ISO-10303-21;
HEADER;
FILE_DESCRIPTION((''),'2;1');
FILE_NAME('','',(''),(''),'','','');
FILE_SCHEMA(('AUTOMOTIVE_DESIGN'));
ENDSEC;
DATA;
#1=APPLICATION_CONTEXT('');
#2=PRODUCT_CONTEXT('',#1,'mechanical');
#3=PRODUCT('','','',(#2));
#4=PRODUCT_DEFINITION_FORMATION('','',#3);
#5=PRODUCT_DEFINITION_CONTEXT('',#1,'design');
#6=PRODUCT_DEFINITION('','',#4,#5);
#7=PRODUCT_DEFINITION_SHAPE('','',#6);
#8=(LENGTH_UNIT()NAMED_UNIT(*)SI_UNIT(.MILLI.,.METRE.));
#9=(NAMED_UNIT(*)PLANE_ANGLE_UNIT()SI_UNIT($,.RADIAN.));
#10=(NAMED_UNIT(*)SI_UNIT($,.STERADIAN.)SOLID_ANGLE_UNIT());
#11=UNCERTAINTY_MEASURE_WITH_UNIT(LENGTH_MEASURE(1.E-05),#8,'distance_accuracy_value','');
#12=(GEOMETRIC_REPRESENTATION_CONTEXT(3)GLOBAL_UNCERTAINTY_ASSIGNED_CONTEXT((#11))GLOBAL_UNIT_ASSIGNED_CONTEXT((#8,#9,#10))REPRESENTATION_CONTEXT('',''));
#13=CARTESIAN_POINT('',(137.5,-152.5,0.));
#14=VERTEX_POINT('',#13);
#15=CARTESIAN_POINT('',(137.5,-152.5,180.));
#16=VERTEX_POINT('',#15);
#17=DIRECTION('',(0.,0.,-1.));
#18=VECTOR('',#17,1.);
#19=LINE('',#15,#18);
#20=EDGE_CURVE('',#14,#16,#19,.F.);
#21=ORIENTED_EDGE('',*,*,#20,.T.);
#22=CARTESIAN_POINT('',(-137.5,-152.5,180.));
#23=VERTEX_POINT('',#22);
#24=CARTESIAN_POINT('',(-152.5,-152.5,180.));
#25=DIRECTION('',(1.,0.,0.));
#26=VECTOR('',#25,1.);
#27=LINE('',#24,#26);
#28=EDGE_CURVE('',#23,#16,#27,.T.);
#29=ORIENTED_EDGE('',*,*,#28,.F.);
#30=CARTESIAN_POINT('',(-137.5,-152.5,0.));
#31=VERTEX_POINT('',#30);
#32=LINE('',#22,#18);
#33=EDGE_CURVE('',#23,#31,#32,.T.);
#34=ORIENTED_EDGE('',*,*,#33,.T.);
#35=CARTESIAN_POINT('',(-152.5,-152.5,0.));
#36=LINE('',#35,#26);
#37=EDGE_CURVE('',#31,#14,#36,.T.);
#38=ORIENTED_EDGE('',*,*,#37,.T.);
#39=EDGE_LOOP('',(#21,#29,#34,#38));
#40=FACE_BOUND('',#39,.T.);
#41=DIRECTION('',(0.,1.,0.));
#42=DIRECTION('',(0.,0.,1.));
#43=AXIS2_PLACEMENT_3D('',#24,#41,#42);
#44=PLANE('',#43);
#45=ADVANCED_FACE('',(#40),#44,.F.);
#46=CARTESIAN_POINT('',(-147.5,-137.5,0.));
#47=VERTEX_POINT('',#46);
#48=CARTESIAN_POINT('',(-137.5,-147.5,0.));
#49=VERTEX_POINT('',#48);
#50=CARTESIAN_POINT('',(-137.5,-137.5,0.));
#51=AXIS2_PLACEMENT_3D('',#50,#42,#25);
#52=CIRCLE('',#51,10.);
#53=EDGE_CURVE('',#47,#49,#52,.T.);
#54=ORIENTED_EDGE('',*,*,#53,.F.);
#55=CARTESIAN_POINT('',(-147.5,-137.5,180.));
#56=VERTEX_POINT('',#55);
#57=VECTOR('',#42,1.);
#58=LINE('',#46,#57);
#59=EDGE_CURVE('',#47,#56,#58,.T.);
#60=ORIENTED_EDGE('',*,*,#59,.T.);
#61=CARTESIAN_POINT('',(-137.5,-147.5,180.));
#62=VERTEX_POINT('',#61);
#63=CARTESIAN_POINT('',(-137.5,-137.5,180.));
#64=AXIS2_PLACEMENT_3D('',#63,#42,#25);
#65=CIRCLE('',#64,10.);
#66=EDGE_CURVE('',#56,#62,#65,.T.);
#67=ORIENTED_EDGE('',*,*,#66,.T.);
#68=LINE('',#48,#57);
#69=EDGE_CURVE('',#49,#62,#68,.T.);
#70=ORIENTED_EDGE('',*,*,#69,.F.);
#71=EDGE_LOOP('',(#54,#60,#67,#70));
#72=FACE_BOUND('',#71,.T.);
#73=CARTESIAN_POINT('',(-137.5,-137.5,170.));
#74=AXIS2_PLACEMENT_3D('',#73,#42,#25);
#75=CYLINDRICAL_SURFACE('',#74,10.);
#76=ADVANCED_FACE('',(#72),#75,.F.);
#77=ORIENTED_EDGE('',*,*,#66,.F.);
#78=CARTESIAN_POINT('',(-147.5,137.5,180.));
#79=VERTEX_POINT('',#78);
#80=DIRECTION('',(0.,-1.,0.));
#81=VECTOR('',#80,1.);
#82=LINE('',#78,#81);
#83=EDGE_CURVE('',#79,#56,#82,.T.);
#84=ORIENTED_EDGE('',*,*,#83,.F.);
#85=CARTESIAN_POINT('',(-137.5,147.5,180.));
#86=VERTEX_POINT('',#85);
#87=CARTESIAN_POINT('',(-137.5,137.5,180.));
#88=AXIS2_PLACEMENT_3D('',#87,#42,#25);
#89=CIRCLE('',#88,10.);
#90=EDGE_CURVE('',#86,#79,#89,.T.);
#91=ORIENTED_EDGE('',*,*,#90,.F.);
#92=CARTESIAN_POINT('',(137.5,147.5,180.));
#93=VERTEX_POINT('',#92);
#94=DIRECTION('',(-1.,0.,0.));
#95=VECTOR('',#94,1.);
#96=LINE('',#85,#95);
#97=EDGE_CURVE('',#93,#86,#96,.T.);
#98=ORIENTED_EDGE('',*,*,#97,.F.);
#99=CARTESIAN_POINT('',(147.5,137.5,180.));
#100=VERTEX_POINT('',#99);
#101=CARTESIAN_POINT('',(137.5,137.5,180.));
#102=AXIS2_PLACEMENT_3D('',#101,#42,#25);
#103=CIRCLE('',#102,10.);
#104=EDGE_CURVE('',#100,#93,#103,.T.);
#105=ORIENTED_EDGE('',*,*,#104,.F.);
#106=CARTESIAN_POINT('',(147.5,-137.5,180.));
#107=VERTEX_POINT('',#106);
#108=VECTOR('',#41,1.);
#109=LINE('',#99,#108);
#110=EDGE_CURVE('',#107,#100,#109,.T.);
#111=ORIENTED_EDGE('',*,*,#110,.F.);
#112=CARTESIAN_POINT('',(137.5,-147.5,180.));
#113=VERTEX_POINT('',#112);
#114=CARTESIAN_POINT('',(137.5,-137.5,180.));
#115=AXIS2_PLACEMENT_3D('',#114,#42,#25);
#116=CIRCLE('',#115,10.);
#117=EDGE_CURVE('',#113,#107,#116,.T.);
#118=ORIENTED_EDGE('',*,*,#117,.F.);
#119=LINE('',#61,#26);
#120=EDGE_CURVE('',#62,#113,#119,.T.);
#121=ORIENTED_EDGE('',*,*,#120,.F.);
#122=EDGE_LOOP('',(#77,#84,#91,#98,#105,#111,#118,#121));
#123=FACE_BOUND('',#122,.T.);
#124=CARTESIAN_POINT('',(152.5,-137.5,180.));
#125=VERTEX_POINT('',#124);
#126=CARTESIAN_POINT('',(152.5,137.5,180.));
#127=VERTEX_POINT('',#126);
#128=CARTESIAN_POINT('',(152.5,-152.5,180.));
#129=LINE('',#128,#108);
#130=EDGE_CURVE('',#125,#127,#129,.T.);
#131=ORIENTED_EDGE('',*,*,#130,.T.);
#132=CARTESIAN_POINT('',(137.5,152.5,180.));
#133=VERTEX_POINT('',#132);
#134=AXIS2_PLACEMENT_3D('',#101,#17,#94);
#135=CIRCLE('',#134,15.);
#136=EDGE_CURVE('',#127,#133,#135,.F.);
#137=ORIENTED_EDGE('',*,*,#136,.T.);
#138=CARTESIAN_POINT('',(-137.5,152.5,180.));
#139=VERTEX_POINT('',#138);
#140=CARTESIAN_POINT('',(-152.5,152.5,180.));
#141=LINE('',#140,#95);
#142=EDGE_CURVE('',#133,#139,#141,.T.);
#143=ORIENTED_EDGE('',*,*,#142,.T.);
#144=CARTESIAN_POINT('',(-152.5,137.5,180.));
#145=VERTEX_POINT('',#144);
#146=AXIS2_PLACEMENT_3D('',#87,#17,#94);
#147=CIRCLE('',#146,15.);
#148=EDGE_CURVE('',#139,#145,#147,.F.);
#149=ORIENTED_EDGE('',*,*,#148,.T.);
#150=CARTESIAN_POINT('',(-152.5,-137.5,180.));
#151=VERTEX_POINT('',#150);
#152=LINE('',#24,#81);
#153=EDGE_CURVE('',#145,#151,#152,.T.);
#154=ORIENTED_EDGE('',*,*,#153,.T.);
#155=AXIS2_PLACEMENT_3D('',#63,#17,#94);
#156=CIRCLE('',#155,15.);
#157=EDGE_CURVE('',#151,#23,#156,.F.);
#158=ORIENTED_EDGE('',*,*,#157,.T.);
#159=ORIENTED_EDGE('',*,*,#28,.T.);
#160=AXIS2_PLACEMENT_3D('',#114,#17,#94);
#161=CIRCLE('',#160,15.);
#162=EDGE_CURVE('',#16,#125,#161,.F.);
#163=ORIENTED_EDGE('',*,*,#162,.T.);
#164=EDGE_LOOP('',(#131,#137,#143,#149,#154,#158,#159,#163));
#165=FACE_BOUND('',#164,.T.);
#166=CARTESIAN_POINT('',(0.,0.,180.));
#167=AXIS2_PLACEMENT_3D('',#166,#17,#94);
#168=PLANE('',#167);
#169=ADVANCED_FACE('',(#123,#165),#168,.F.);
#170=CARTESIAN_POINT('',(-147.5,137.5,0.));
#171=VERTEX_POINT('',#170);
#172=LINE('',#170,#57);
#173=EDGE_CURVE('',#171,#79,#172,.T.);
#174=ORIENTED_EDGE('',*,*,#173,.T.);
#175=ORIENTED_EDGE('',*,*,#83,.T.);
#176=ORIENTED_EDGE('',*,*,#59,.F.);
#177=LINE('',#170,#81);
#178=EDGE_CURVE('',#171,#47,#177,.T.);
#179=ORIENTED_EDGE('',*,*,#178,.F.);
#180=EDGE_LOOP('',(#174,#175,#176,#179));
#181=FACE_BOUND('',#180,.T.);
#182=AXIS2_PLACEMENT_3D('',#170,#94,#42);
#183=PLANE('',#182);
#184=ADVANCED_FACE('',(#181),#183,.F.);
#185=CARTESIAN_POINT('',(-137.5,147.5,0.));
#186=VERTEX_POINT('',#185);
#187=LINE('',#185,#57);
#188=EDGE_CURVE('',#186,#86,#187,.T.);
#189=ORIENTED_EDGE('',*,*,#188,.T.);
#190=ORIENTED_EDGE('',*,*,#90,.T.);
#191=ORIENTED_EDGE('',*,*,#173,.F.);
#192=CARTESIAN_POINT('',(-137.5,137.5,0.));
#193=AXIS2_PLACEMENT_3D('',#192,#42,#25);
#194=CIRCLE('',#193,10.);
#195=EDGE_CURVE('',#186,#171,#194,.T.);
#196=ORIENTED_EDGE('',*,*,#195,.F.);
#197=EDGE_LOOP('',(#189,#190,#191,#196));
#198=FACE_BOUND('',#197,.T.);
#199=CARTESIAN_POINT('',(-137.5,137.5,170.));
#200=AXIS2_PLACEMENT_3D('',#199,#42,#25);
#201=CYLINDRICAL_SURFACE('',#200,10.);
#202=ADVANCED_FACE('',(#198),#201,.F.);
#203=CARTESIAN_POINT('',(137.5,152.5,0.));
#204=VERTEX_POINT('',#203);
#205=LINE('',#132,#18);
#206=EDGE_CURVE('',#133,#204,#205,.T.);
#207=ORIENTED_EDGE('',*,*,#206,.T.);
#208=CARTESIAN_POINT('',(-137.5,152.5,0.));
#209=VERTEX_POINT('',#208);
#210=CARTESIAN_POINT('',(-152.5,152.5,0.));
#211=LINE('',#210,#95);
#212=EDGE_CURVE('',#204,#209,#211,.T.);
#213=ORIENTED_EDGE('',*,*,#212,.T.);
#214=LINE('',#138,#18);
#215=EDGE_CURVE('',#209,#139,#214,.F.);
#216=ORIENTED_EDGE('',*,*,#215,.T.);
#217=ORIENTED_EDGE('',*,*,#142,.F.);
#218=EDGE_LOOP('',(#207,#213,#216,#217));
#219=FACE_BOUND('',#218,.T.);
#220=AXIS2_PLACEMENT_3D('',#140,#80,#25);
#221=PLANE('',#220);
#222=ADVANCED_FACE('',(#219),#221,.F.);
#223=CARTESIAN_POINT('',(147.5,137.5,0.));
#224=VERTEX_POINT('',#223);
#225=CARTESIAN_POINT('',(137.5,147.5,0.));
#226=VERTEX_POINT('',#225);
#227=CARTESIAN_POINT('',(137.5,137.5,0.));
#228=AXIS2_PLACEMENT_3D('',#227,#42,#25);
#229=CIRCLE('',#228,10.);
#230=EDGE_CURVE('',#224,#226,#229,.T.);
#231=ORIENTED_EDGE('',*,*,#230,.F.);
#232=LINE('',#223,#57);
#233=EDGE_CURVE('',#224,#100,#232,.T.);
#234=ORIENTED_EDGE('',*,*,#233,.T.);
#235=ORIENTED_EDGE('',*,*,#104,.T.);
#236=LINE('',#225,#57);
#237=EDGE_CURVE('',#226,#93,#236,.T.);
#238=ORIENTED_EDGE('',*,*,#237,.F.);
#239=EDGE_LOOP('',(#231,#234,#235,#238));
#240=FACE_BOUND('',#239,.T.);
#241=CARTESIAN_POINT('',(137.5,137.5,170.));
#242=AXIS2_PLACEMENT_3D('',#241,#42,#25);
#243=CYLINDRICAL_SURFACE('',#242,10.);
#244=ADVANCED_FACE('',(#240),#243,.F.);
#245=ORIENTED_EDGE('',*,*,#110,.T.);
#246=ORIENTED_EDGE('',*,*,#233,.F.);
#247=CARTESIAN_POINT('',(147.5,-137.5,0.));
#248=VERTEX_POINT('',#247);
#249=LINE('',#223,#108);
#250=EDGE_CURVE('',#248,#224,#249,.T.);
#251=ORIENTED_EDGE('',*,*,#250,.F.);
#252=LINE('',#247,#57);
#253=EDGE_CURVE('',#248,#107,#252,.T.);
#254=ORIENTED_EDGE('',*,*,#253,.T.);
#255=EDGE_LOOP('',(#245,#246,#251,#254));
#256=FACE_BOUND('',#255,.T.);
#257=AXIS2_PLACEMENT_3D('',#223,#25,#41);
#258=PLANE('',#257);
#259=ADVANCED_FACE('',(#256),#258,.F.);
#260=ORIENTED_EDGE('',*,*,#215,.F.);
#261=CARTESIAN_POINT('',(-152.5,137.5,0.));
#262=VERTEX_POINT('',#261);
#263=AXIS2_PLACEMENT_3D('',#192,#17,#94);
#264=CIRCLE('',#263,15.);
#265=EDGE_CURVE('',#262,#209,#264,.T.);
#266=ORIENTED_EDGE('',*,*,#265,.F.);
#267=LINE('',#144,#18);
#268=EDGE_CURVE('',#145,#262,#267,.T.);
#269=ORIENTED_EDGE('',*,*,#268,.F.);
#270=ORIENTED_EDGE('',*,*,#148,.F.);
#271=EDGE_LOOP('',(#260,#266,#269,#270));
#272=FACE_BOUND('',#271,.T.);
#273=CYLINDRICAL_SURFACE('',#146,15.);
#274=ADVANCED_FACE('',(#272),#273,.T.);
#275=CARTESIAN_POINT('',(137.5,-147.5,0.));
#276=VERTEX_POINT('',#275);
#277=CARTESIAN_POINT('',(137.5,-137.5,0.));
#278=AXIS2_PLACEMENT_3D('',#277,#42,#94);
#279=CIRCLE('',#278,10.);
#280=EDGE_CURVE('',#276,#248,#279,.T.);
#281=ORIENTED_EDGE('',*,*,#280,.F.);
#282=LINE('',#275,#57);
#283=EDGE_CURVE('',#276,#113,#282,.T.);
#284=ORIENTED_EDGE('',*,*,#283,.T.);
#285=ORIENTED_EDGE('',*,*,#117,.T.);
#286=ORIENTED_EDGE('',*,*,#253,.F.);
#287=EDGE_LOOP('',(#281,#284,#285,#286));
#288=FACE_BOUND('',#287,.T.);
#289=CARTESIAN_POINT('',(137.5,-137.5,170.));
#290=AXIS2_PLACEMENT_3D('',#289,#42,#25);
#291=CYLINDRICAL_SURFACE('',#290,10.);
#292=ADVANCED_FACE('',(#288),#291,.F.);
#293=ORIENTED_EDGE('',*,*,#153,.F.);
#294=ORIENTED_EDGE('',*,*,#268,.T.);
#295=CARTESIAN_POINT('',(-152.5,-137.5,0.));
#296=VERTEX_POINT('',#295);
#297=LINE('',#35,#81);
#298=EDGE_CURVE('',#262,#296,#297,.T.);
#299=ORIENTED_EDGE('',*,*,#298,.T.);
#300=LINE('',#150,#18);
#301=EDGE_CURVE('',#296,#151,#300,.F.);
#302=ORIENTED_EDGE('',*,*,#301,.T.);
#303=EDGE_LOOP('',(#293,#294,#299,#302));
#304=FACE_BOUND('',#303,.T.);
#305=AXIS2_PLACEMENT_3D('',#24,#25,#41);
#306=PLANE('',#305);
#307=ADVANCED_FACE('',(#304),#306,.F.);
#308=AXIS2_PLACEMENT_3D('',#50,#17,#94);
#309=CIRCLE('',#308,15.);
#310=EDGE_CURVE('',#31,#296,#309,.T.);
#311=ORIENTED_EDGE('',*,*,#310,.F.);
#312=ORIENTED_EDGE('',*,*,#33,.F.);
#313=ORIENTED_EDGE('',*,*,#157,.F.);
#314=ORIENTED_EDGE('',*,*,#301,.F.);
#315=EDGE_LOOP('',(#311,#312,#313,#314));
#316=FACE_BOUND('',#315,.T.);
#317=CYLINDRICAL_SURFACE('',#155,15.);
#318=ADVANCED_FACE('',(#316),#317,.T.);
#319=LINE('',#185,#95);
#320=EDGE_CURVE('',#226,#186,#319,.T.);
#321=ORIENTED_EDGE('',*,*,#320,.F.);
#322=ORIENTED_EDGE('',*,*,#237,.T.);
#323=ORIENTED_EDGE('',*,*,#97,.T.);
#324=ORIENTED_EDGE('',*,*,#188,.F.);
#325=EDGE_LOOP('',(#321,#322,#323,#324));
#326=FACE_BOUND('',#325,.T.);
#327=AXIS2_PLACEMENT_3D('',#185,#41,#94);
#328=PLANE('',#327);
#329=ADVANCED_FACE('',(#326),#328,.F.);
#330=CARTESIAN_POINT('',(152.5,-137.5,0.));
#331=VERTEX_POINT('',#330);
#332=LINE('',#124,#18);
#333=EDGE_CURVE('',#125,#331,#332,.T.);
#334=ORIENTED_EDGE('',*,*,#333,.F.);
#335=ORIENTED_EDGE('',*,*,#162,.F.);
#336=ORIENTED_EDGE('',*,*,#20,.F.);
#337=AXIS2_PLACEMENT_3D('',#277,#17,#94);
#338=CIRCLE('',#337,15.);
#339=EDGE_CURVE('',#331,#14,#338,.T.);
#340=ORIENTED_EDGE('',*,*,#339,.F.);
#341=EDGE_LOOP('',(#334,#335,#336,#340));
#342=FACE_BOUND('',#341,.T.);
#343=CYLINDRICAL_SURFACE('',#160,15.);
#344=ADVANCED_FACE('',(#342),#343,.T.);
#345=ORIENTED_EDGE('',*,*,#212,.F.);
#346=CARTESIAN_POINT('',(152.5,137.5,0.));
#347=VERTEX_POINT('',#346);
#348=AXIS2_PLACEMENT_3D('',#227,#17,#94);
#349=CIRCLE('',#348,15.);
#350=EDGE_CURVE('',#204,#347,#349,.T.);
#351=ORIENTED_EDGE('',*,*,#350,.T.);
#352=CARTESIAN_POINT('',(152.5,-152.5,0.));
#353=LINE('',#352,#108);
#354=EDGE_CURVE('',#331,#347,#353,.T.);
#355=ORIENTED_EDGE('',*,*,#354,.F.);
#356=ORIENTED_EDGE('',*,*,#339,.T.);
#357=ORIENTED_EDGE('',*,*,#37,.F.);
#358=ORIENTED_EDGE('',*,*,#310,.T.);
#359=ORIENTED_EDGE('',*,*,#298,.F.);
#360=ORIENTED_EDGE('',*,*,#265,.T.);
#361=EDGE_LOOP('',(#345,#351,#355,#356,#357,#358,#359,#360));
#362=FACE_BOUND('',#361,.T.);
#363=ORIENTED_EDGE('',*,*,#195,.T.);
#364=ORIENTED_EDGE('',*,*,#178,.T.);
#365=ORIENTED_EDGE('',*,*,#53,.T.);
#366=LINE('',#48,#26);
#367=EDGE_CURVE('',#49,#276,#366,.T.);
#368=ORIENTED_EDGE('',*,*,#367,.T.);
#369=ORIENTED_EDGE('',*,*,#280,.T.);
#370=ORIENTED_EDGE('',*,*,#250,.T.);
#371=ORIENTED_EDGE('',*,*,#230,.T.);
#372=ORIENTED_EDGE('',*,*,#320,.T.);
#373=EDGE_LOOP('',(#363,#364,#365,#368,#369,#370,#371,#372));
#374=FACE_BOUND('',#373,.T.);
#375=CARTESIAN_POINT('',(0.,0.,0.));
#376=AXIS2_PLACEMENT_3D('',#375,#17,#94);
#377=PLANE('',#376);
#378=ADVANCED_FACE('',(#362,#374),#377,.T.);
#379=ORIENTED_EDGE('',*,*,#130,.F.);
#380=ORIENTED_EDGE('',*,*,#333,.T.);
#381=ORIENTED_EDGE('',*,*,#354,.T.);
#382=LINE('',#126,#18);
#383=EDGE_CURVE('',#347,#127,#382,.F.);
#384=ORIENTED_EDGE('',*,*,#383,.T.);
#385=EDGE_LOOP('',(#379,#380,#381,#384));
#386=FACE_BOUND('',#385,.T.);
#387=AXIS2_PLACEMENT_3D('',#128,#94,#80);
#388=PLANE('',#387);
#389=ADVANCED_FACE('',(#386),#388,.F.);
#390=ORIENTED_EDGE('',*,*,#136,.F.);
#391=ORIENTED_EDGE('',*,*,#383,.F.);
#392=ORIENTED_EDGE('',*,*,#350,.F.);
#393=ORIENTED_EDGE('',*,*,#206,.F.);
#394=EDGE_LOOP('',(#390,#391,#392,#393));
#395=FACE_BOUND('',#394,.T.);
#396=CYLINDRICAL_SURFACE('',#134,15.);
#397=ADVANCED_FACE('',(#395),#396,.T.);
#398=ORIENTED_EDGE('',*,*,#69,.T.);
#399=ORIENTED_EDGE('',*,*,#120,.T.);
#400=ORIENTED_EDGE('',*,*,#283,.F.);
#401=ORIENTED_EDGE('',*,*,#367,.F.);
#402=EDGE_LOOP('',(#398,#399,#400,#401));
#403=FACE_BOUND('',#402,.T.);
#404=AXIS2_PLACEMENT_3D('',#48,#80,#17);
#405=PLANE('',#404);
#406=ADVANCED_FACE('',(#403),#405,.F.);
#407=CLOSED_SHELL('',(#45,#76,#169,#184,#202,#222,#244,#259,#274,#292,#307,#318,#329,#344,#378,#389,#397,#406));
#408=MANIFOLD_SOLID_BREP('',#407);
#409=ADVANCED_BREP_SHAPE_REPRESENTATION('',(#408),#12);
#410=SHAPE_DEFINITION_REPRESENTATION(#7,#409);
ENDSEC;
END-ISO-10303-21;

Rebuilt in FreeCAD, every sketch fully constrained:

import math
import FreeCAD as App
import Part
import Sketcher

V = App.Vector
Q = App.Units.Quantity


def edges_at(feature, points):
    """Names of the edges that pass closest to the given points."""
    edges = feature.Shape.Edges
    near = lambda p: min(range(len(edges)), key=lambda i: edges[i].distToShape(Part.Vertex(*p))[0])
    return sorted({f"Edge{near(p) + 1}" for p in points})

doc = App.newDocument("Part")
body = doc.addObject("PartDesign::Body", "Body")

# Sketch on XY plane
sketch1 = body.newObject("Sketcher::SketchObject", "Sketch")
sketch1.AttachmentSupport = (doc.getObject("XY_Plane"), [""])
sketch1.MapMode = "FlatFace"
sketch1.addGeometry([
    Part.LineSegment(V(-152, 152, 0), V(-152, -152, 0)),
    Part.LineSegment(V(-152, -152, 0), V(152, -152, 0)),
    Part.LineSegment(V(152, -152, 0), V(152, 152, 0)),
    Part.LineSegment(V(152, 152, 0), V(-152, 152, 0)),
], False)
sketch1.addConstraint([
    Sketcher.Constraint("Coincident", 0, 2, 1, 1),
    Sketcher.Constraint("Coincident", 1, 2, 2, 1),
    Sketcher.Constraint("Coincident", 2, 2, 3, 1),
    Sketcher.Constraint("Coincident", 3, 2, 0, 1),
    Sketcher.Constraint("Vertical", 0),
    Sketcher.Constraint("Horizontal", 1),
    Sketcher.Constraint("Vertical", 2),
    Sketcher.Constraint("Horizontal", 3),
    Sketcher.Constraint("Symmetric", 0, 2, 2, 2, -1, 1),
    Sketcher.Constraint("Equal", 3, 0),
    Sketcher.Constraint("DistanceX", 1, 1, 1, 2, Q("305 mm")),
])
pad1 = body.newObject("PartDesign::Pad", "Pad")
pad1.Profile = sketch1
pad1.Length = 180

# Sketch on XY plane
sketch2 = body.newObject("Sketcher::SketchObject", "Sketch001")
sketch2.AttachmentSupport = (doc.getObject("XY_Plane"), [""])
sketch2.MapMode = "FlatFace"
sketch2.AttachmentOffset = App.Placement(V(0, 0, 180), App.Rotation())
sketch2.addGeometry([
    Part.Circle(V(138, 138, 0), V(0, 0, 1), 10),
    Part.Circle(V(138, -138, 0), V(0, 0, 1), 10),
    Part.Circle(V(-138, -138, 0), V(0, 0, 1), 10),
    Part.Circle(V(-138, 138, 0), V(0, 0, 1), 10),
], False)
sketch2.addConstraint([
    Sketcher.Constraint("Equal", 0, 1),
    Sketcher.Constraint("Equal", 1, 2),
    Sketcher.Constraint("Equal", 2, 3),
    Sketcher.Constraint("Symmetric", 0, 3, 2, 3, -1, 1),
    Sketcher.Constraint("Symmetric", 1, 3, 3, 3, -1, 1),
    Sketcher.Constraint("Symmetric", 1, 3, 2, 3, -2),
    Sketcher.Constraint("Diameter", 0, Q("20 mm")),
    Sketcher.Constraint("DistanceY", 1, 3, 0, 3, Q("275 mm")),
    Sketcher.Constraint("DistanceX", 2, 3, 1, 3, Q("275 mm")),
])
pocket1 = body.newObject("PartDesign::Pocket", "Pocket")
pocket1.Profile = sketch2
pocket1.Length = 10
doc.recompute()

fillet = body.newObject("PartDesign::Fillet", "Fillet")
fillet.Base = (pocket1, edges_at(pocket1, [
    (-152.5, 152.5, 90),
    (152.5, 152.5, 90),
    (152.5, -152.5, 90),
    (-152.5, -152.5, 90),
]))
fillet.Radius = 15

# Sketch on XY plane
sketch3 = body.newObject("Sketcher::SketchObject", "Sketch002")
sketch3.AttachmentSupport = (doc.getObject("XY_Plane"), [""])
sketch3.MapMode = "FlatFace"
sketch3.AttachmentOffset = App.Placement(V(0, 0, 180), App.Rotation())
sketch3.addGeometry([
    Part.LineSegment(V(138, 148, 0), V(-138, 148, 0)),  # 0
    Part.ArcOfCircle(Part.Circle(V(-138, 138, 0), V(0, 0, 1), 10), math.radians(90), math.radians(180)),  # 1
    Part.LineSegment(V(-148, 138, 0), V(-148, -138, 0)),  # 2
    Part.ArcOfCircle(Part.Circle(V(-138, -138, 0), V(0, 0, 1), 10), math.radians(180), math.radians(270)),  # 3
    Part.LineSegment(V(-138, -148, 0), V(138, -148, 0)),  # 4
    Part.ArcOfCircle(Part.Circle(V(138, -138, 0), V(0, 0, 1), 10), math.radians(-90), math.radians(0)),  # 5
    Part.LineSegment(V(148, -138, 0), V(148, 138, 0)),  # 6
    Part.ArcOfCircle(Part.Circle(V(138, 138, 0), V(0, 0, 1), 10), math.radians(0), math.radians(90)),  # 7
], False)
sketch3.addConstraint([
    Sketcher.Constraint("Tangent", 0, 2, 1, 1),
    Sketcher.Constraint("Tangent", 1, 2, 2, 1),
    Sketcher.Constraint("Tangent", 2, 2, 3, 1),
    Sketcher.Constraint("Tangent", 3, 2, 4, 1),
    Sketcher.Constraint("Tangent", 4, 2, 5, 1),
    Sketcher.Constraint("Tangent", 5, 2, 6, 1),
    Sketcher.Constraint("Tangent", 6, 2, 7, 1),
    Sketcher.Constraint("Tangent", 7, 2, 0, 1),
    Sketcher.Constraint("Horizontal", 0),
    Sketcher.Constraint("Vertical", 2),
    Sketcher.Constraint("Horizontal", 4),
    Sketcher.Constraint("Vertical", 6),
    Sketcher.Constraint("Equal", 1, 3),
    Sketcher.Constraint("Equal", 3, 5),
    Sketcher.Constraint("Equal", 5, 7),
    Sketcher.Constraint("Symmetric", 1, 3, 5, 3, -1, 1),
    Sketcher.Constraint("Equal", 4, 2),
    Sketcher.Constraint("Radius", 1, Q("9.999999 mm")),
    Sketcher.Constraint("DistanceX", 0, 2, 0, 1, Q("275 mm")),
])
pocket2 = body.newObject("PartDesign::Pocket", "Pocket001")
pocket2.Profile = sketch3
pocket2.Length = 180

doc.recompute()
